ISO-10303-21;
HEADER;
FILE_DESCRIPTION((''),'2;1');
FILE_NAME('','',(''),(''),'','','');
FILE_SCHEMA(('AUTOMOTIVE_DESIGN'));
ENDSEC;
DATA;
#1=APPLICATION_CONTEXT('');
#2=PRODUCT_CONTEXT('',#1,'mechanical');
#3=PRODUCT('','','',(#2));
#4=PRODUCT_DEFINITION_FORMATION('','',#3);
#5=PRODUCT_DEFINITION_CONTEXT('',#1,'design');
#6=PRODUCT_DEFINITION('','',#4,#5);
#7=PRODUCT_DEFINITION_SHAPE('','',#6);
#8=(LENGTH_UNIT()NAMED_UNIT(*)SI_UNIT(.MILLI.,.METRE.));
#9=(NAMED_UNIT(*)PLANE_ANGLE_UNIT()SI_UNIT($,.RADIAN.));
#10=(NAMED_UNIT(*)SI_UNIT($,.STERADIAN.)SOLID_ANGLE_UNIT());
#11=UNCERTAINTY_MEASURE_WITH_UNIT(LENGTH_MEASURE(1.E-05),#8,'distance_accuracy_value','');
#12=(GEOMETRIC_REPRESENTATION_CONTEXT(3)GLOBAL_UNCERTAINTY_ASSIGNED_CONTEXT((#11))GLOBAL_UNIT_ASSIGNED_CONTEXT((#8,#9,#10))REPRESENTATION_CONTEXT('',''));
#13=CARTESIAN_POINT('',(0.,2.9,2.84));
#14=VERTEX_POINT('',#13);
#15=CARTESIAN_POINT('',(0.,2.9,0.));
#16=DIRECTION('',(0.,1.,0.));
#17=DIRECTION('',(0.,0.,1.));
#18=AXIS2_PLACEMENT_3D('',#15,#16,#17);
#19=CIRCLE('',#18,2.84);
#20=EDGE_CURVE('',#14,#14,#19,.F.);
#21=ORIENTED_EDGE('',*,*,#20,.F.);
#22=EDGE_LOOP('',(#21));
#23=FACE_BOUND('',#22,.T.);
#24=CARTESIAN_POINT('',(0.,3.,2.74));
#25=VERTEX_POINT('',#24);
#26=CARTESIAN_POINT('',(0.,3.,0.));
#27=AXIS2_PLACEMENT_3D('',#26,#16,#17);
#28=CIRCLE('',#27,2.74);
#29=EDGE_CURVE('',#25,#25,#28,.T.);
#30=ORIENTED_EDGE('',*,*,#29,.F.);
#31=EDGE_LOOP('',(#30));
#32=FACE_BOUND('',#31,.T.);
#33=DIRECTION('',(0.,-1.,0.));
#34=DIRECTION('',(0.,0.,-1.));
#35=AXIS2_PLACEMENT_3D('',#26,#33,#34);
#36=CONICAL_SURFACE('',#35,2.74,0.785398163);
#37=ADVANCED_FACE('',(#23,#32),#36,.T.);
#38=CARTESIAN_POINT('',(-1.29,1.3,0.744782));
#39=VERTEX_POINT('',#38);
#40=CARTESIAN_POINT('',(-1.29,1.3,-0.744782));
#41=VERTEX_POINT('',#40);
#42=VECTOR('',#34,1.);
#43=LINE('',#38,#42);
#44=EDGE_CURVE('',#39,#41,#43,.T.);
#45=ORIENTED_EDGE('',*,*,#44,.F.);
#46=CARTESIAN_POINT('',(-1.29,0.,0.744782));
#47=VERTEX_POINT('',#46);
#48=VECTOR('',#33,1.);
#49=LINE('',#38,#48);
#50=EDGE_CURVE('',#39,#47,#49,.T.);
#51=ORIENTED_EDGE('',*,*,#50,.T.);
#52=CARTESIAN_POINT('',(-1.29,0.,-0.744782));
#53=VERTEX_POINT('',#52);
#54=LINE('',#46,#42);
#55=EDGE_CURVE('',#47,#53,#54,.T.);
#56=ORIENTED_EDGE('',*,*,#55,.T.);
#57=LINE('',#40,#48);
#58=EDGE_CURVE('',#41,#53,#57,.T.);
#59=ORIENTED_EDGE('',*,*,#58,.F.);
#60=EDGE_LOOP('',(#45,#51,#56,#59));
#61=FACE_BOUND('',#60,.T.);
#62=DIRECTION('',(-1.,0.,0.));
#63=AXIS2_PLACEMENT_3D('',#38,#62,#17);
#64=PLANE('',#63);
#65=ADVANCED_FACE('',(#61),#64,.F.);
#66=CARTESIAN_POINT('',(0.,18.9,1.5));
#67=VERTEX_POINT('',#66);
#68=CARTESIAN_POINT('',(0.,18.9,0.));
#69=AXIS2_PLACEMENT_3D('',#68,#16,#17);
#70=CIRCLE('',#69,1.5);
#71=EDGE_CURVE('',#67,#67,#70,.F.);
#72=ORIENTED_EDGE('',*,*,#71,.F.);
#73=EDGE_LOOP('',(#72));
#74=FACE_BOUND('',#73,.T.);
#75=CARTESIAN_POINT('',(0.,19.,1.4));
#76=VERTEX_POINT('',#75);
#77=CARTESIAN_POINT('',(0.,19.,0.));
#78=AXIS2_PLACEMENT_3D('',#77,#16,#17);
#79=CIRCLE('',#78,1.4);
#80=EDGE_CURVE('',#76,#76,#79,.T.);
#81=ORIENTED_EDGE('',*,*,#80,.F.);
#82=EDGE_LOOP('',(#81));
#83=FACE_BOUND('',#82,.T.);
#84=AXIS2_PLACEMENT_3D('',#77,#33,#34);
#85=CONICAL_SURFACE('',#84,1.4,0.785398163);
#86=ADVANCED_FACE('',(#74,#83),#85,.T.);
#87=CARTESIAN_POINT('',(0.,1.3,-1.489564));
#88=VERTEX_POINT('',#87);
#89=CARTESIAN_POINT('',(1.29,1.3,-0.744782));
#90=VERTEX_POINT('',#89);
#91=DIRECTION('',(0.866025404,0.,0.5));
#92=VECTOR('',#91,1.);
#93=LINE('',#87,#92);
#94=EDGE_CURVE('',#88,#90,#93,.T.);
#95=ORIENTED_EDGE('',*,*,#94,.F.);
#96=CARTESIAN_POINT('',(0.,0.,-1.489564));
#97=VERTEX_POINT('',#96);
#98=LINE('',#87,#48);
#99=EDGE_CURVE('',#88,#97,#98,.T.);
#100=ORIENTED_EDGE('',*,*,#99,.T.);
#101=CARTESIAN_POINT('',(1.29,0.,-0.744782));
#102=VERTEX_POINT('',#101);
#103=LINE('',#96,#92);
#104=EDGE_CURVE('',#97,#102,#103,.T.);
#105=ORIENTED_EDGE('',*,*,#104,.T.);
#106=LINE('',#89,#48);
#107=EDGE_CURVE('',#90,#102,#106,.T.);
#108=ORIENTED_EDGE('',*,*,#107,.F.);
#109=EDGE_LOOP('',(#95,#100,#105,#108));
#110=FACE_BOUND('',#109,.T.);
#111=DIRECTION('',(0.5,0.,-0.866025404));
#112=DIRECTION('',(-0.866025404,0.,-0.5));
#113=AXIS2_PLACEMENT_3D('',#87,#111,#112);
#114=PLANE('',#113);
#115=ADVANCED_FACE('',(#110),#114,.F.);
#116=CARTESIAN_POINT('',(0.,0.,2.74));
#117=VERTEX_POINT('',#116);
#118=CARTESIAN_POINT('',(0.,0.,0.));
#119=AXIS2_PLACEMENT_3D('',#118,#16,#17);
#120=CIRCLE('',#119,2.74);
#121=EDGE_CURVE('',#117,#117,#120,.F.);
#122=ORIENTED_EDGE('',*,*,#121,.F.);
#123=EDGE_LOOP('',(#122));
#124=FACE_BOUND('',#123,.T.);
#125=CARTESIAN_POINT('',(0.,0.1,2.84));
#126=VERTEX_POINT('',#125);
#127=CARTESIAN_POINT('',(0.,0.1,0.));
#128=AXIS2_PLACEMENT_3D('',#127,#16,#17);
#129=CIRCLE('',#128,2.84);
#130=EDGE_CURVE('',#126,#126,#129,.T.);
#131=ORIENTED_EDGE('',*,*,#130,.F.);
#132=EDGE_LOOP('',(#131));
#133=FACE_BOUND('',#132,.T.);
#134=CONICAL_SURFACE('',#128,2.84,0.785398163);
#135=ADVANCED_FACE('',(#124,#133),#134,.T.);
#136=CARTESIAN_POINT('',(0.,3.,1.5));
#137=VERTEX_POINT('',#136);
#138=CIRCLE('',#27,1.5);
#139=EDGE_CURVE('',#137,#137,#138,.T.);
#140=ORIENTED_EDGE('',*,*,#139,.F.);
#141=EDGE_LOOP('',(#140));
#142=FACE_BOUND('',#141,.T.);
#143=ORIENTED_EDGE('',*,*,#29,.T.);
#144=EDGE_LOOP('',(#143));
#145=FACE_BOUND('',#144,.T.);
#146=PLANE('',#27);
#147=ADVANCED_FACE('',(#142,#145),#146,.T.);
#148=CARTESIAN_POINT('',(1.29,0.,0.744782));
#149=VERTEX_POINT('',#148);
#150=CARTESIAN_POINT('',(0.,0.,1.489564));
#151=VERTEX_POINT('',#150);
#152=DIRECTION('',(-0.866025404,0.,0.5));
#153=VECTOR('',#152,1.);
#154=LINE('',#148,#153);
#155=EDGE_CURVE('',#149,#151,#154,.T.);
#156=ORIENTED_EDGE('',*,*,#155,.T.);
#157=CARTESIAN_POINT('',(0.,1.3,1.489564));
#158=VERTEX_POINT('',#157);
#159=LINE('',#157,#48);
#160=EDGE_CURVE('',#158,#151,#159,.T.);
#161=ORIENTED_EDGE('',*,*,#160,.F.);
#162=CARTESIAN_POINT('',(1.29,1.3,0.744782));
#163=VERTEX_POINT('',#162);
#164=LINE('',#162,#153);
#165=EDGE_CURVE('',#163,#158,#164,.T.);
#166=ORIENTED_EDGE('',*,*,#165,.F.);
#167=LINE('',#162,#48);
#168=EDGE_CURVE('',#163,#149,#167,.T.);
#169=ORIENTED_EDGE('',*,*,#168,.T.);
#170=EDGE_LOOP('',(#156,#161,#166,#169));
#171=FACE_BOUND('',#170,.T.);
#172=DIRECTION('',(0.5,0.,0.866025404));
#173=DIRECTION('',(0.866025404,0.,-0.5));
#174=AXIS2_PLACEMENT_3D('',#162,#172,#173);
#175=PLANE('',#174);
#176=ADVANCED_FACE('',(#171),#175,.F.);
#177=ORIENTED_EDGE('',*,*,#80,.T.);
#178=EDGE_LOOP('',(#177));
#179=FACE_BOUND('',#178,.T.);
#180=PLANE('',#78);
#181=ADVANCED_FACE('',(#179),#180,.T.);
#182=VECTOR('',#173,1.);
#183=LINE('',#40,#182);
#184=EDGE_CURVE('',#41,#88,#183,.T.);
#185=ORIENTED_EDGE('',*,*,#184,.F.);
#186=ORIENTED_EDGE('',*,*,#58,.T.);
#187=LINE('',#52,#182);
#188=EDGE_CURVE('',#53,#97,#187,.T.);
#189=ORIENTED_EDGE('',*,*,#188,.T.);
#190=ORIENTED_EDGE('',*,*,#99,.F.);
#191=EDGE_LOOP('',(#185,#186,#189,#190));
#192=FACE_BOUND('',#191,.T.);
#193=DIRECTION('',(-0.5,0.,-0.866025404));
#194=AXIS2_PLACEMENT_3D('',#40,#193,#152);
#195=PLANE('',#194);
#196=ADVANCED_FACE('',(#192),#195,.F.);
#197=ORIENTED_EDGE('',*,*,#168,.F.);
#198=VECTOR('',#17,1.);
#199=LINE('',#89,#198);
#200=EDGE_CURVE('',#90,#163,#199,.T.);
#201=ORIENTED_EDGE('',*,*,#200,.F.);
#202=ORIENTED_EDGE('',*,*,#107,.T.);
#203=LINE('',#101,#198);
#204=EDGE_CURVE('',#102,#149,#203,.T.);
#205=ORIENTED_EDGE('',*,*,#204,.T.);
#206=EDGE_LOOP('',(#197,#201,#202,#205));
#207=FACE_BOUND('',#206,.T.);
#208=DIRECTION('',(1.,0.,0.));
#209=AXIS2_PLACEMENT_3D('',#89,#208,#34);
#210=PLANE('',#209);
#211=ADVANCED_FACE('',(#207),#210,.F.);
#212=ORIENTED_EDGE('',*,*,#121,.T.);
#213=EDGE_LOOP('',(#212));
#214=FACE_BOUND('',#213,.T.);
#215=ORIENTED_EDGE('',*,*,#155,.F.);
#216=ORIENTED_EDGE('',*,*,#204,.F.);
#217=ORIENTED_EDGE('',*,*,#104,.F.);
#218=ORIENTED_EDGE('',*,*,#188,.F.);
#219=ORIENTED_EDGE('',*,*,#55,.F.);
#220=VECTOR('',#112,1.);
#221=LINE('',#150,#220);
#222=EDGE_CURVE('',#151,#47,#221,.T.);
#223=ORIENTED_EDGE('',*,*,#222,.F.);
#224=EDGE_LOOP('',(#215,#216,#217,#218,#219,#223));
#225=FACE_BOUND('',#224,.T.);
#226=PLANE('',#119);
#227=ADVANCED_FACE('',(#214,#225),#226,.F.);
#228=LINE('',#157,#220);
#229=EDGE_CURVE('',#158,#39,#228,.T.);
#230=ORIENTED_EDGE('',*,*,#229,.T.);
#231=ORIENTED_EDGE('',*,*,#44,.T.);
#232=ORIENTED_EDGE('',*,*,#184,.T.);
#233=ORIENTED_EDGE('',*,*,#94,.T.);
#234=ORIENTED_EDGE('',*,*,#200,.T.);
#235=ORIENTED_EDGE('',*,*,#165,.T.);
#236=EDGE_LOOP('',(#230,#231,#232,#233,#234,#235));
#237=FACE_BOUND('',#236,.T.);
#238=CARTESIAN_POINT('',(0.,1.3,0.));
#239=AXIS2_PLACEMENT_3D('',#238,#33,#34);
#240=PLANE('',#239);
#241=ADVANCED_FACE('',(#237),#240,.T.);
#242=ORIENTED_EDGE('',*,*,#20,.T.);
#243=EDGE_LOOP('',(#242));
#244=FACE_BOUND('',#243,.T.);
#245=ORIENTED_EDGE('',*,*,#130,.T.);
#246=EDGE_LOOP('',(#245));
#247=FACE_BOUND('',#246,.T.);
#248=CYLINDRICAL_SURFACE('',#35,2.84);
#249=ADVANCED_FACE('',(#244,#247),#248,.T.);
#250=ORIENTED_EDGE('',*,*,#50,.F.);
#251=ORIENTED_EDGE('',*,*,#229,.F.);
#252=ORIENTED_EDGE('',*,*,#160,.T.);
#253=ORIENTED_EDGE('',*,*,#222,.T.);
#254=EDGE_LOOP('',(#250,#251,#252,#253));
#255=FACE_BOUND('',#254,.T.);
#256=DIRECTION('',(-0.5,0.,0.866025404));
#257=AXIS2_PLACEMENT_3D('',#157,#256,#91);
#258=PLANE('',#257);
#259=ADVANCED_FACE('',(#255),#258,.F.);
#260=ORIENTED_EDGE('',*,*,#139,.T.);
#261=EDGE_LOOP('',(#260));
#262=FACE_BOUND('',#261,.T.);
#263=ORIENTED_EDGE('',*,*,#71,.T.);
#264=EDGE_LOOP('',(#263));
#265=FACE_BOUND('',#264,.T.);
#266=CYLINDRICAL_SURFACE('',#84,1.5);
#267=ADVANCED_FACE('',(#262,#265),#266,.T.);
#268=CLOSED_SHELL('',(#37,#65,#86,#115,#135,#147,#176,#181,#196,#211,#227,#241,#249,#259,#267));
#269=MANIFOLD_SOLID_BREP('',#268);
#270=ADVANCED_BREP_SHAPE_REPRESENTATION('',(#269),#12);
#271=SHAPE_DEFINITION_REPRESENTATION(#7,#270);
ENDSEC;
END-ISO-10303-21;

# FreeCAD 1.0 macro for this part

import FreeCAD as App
import Part
import Sketcher
from FreeCAD import Vector
Q = App.Units.Quantity


def edges_at(feature, points):
    """Names of the edges that pass closest to the given points."""
    edges = feature.Shape.Edges
    near = lambda p: min(range(len(edges)), key=lambda i: edges[i].distToShape(Part.Vertex(*p))[0])
    return sorted({f"Edge{near(p) + 1}" for p in points})


def add_polygon(sketch, points):
    """Adds a closed chain of lines whose ends are joined by coincident constraints."""
    first, n = sketch.GeometryCount, len(points)
    for a, b in zip(points, points[1:] + points[:1]):
        sketch.addGeometry(Part.LineSegment(App.Vector(*a, 0), App.Vector(*b, 0)), False)
    for i in range(n):
        sketch.addConstraint(Sketcher.Constraint("Coincident", first + i, 2, first + (i + 1) % n, 1))

doc = App.newDocument("Part")
body = doc.addObject("PartDesign::Body", "Body")

# Sketch on XZ plane
sketch1 = body.newObject("Sketcher::SketchObject", "Sketch")
sketch1.AttachmentSupport = (doc.getObject("XZ_Plane"), [""])
sketch1.MapMode = "FlatFace"
sketch1.addGeometry(Part.Circle(Vector(0, 0, 0), Vector(0, 0, 1), 2.8), False)
sketch1.addConstraint(Sketcher.Constraint("Coincident", 0, 3, -1, 1))
sketch1.addConstraint(Sketcher.Constraint("Diameter", 0, Q("5.68 mm")))
pad1 = body.newObject("PartDesign::Pad", "Pad")
pad1.Profile = sketch1
pad1.Length = 3
pad1.Reversed = True

# Sketch on XZ plane
sketch2 = body.newObject("Sketcher::SketchObject", "Sketch001")
sketch2.AttachmentSupport = (doc.getObject("XZ_Plane"), [""])
sketch2.MapMode = "FlatFace"
sketch2.AttachmentOffset = App.Placement(Vector(0, 0, -3), App.Rotation())
sketch2.addGeometry(Part.Circle(Vector(0, 0, 0), Vector(0, 0, 1), 1.5), False)
sketch2.addConstraint(Sketcher.Constraint("Coincident", 0, 3, -1, 1))
sketch2.addConstraint(Sketcher.Constraint("Diameter", 0, Q("3 mm")))
pad2 = body.newObject("PartDesign::Pad", "Pad001")
pad2.Profile = sketch2
pad2.Length = 16
pad2.Reversed = True

# Sketch on XZ plane
sketch3 = body.newObject("Sketcher::SketchObject", "Sketch002")
sketch3.AttachmentSupport = (doc.getObject("XZ_Plane"), [""])
sketch3.MapMode = "FlatFace"
add_polygon(sketch3, [(1.3, -0.7), (1.3, 0.7), (0, 1.5), (-1.3, 0.7), (-1.3, -0.7), (0, -1.5)])  # lines 0-5
sketch3.addConstraint(Sketcher.Constraint("Vertical", 0))
sketch3.addConstraint(Sketcher.Constraint("Vertical", 3))
sketch3.addConstraint(Sketcher.Constraint("Symmetric", 0, 2, 3, 2, -1, 1))
sketch3.addConstraint(Sketcher.Constraint("Symmetric", 1, 2, 4, 2, -1, 1))
sketch3.addConstraint(Sketcher.Constraint("PointOnObject", 1, 2, -2))
sketch3.addConstraint(Sketcher.Constraint("Parallel", 2, 5))
sketch3.addConstraint(Sketcher.Constraint("Horizontal", 0, 2, 2, 2))
sketch3.addConstraint(Sketcher.Constraint("Angle", 1, Q("150 deg")))
sketch3.addConstraint(Sketcher.Constraint("DistanceX", -1, 1, 0, 2, Q("1.29 mm")))
sketch3.addConstraint(Sketcher.Constraint("DistanceY", 0, 1, 0, 2, Q("1.489564 mm")))
pocket1 = body.newObject("PartDesign::Pocket", "Pocket")
pocket1.Profile = sketch3
pocket1.Length = 1.3
doc.recompute()

chamfer = body.newObject("PartDesign::Chamfer", "Chamfer")
chamfer.Base = (pocket1, edges_at(pocket1, [(0, 0, -2.84), (0, 3, -2.84), (0, 19, -1.5)]))
chamfer.Size = 0.1

doc.recompute()
